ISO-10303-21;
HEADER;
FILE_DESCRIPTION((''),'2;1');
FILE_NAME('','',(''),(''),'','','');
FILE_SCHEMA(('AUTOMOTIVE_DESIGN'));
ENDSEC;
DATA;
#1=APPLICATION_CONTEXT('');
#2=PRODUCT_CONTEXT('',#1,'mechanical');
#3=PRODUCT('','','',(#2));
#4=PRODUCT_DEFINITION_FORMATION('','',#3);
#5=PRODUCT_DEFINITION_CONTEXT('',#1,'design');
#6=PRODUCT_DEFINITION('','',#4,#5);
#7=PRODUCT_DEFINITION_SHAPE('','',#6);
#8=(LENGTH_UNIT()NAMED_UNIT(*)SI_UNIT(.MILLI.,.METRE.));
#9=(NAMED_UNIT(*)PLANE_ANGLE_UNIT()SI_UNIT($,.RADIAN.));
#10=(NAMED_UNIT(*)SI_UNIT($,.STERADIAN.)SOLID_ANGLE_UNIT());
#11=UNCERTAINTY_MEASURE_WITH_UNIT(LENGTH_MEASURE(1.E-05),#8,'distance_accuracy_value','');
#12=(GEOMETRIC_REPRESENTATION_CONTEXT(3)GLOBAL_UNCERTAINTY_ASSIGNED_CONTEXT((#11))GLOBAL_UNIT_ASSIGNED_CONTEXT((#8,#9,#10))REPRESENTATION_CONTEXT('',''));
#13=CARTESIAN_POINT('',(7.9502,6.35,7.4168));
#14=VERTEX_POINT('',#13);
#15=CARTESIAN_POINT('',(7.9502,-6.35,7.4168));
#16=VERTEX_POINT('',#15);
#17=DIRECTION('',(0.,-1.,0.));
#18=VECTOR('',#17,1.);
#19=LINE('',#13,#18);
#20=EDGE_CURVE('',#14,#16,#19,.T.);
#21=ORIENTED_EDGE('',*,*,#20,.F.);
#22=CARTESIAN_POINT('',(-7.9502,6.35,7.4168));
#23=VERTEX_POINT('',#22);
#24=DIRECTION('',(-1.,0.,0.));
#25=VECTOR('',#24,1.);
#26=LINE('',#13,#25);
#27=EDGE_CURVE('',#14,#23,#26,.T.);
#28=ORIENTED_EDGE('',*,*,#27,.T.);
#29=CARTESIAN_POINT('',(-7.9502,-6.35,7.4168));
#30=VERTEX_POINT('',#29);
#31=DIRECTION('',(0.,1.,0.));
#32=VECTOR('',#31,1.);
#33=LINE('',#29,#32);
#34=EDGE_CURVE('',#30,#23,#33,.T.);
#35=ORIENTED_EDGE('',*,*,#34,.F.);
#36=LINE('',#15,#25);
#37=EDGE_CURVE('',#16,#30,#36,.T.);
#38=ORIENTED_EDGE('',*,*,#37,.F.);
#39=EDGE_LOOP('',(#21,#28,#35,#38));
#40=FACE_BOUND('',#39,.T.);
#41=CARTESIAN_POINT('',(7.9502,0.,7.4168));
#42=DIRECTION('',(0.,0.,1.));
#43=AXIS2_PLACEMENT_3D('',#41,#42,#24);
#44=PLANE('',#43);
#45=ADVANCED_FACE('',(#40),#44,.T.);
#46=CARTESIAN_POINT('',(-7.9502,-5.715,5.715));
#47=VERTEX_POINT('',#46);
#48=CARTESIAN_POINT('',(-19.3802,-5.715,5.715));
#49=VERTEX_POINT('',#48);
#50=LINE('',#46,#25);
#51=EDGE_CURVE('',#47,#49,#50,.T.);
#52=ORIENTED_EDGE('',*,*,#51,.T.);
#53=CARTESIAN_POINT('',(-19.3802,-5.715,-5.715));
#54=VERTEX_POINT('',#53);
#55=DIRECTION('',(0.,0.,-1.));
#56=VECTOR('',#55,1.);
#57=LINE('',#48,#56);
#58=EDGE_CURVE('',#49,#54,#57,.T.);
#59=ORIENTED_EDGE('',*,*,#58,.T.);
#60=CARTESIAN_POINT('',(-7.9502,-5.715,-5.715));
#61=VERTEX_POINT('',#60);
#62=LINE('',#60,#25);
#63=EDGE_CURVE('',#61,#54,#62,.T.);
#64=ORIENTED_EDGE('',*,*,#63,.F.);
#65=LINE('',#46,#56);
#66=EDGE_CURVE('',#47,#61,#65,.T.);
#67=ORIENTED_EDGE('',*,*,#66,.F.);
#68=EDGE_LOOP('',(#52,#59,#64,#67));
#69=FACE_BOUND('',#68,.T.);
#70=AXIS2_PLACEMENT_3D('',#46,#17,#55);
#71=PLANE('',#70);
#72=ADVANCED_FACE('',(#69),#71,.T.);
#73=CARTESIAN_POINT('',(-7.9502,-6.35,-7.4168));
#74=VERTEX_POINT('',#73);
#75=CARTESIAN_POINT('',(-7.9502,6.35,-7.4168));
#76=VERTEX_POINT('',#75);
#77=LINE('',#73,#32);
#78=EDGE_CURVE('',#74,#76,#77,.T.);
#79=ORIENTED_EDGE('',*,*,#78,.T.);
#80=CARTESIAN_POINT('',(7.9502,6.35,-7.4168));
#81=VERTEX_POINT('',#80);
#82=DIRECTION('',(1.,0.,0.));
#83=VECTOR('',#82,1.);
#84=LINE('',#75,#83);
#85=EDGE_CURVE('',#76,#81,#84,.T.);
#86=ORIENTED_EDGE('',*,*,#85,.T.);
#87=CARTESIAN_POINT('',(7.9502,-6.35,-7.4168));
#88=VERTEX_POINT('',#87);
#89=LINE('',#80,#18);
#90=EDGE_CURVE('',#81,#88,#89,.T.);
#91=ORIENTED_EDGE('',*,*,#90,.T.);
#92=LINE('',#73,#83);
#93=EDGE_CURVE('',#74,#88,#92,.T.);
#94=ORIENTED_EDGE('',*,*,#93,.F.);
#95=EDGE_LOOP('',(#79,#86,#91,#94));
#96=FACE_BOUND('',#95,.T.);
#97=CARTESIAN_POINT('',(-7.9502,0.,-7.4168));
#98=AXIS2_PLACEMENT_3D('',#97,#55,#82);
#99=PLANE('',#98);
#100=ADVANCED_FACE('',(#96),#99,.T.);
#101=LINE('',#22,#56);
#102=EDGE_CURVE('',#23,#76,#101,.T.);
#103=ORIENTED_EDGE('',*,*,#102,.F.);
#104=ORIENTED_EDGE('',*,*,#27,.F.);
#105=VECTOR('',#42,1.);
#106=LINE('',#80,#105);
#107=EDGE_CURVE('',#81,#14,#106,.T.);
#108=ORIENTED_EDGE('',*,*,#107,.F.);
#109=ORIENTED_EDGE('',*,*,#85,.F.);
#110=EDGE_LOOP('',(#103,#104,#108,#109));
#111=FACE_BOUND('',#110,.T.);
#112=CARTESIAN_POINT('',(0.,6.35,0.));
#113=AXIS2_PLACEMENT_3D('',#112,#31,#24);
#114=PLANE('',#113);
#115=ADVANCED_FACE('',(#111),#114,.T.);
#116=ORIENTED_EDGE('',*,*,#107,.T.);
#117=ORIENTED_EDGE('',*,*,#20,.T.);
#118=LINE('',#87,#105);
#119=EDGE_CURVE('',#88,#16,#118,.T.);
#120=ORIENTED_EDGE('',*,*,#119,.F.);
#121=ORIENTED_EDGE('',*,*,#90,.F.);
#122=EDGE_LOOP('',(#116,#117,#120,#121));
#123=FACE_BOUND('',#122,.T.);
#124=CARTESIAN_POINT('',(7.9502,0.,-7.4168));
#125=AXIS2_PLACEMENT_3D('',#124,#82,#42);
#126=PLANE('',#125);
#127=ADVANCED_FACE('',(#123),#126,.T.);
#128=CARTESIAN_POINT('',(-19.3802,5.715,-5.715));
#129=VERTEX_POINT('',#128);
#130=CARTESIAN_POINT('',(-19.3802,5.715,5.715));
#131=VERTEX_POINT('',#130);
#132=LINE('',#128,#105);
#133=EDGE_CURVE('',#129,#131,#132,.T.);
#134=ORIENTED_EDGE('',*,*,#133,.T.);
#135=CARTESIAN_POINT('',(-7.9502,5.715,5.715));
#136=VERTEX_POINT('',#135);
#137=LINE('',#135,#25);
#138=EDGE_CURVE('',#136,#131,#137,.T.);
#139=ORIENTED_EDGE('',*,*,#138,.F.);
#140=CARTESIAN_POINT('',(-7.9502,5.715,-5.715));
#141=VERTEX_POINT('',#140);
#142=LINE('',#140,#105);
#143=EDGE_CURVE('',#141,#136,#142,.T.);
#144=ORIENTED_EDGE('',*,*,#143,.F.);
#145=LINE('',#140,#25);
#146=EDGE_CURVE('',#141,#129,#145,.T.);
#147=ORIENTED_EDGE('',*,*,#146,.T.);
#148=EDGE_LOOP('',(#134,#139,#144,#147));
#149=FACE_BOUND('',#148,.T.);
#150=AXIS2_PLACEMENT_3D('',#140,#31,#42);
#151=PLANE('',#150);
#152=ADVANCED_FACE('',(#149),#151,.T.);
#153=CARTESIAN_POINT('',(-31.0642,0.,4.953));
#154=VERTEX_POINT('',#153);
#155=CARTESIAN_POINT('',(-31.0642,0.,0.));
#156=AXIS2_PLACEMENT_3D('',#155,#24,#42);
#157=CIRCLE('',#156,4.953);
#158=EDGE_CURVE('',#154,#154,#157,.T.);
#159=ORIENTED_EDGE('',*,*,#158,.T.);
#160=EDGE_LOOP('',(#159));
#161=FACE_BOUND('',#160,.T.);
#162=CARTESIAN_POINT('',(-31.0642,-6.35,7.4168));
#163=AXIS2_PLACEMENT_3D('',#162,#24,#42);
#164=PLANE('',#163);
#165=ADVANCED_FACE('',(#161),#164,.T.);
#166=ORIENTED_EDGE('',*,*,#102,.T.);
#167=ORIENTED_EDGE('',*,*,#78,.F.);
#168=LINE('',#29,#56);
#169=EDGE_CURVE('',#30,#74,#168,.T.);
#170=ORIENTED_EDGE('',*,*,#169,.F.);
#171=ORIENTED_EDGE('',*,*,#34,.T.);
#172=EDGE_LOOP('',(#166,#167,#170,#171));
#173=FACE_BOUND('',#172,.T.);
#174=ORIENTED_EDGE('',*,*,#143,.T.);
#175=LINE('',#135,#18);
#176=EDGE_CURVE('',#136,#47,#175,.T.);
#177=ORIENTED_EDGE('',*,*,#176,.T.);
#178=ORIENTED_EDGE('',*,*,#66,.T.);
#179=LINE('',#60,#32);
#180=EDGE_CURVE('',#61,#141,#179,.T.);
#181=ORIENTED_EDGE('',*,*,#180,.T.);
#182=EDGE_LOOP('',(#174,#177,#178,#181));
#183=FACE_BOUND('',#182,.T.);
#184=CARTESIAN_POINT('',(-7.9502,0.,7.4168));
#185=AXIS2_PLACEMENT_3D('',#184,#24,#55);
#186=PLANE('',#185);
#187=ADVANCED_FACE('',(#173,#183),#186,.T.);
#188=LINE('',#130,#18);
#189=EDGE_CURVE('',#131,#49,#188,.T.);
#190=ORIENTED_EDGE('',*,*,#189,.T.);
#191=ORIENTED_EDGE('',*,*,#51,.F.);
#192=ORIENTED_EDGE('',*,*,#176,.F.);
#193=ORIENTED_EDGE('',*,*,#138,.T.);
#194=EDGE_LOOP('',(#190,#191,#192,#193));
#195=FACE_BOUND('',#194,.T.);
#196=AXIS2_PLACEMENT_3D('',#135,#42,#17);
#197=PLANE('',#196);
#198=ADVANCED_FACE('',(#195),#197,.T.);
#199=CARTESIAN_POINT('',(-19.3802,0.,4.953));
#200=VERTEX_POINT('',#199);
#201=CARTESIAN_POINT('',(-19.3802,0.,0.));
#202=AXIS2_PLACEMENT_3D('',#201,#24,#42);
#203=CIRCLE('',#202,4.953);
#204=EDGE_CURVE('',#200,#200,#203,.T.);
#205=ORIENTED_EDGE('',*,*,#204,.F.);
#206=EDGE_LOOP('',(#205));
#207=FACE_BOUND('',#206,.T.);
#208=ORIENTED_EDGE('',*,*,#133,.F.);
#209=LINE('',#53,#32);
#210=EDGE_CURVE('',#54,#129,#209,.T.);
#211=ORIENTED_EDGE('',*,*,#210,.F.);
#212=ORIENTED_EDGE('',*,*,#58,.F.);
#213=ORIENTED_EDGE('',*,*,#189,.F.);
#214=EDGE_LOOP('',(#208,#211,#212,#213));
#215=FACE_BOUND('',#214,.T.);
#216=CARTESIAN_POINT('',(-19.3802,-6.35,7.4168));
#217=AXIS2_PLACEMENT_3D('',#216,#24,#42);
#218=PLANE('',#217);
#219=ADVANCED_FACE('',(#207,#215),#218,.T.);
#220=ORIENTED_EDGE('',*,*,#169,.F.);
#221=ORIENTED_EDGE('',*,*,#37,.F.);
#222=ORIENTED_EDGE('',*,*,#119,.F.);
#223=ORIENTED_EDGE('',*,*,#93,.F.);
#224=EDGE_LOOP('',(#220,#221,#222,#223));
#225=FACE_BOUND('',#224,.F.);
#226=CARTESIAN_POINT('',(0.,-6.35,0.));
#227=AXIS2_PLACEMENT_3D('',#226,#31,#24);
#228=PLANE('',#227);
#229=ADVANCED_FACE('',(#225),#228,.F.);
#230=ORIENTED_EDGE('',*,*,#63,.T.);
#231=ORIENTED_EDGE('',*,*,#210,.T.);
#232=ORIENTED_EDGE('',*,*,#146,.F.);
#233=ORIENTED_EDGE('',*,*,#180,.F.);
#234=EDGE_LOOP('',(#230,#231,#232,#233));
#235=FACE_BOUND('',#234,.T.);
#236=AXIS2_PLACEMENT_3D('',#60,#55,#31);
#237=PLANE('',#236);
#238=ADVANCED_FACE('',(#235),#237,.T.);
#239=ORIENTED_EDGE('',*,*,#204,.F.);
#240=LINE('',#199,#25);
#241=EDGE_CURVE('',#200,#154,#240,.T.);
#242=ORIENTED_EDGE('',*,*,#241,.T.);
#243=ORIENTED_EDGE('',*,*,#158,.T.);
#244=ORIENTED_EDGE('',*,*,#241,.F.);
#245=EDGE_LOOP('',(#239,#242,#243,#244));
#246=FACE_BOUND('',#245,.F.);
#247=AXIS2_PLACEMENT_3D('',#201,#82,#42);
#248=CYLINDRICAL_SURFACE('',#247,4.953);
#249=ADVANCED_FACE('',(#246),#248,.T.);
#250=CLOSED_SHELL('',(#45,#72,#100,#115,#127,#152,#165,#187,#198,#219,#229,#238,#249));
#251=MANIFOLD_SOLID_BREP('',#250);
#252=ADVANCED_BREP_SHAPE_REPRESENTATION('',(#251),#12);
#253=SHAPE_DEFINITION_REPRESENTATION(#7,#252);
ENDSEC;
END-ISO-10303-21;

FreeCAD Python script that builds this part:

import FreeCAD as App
import Part
import Sketcher

V = App.Vector
Q = App.Units.Quantity

doc = App.newDocument("Part")
params = doc.addObject("Spreadsheet::Sheet", "Params")
for row, (alias, value) in enumerate([
    ("sketch1_width", "0.626 in"),
    ("sketch1_height", "0.584 in"),
    ("pad1_length", "0.5 in"),
    ("sketch2_width", "0.45 in"),
    ("pad2_length", "0.45 in"),
    ("sketch3_diameter", "0.39 in"),
    ("pad3_length", "0.46 in"),
], start=1):
    params.set(f"A{row}", alias)
    params.set(f"B{row}", "=" + value)
    params.setAlias(f"B{row}", alias)

body = doc.addObject("PartDesign::Body", "Body")

sketch1 = body.newObject("Sketcher::SketchObject", "Sketch")
sketch1.AttachmentSupport = (doc.getObject("XZ_Plane"), [""])
sketch1.MapMode = "FlatFace"
sketch1.addGeometry([
    Part.LineSegment(V(8, -7, 0), V(-8, -7, 0)),
    Part.LineSegment(V(-8, -7, 0), V(-8, 7, 0)),
    Part.LineSegment(V(-8, 7, 0), V(8, 7, 0)),
    Part.LineSegment(V(8, 7, 0), V(8, -7, 0)),
], False)
sketch1.addConstraint([
    Sketcher.Constraint("Coincident", 0, 2, 1, 1),
    Sketcher.Constraint("Coincident", 1, 2, 2, 1),
    Sketcher.Constraint("Coincident", 2, 2, 3, 1),
    Sketcher.Constraint("Coincident", 3, 2, 0, 1),
    Sketcher.Constraint("Horizontal", 0),
    Sketcher.Constraint("Vertical", 1),
    Sketcher.Constraint("Horizontal", 2),
    Sketcher.Constraint("Vertical", 3),
    Sketcher.Constraint("Symmetric", 0, 2, 2, 2, -1, 1),
    Sketcher.Constraint("DistanceX", 0, 2, 0, 1, Q("0.626 in")),
    Sketcher.Constraint("DistanceY", 1, 1, 1, 2, Q("0.584 in")),
])
sketch1.setExpression("Constraints[9]", "Params.sketch1_width")
sketch1.setExpression("Constraints[10]", "Params.sketch1_height")
pad1 = body.newObject("PartDesign::Pad", "Pad")
pad1.Profile = sketch1
pad1.setExpression("Length", "Params.pad1_length")
pad1.Midplane = True

sketch2 = body.newObject("Sketcher::SketchObject", "Sketch001")
sketch2.AttachmentSupport = (doc.getObject("YZ_Plane"), [""])
sketch2.MapMode = "FlatFace"
sketch2.AttachmentOffset = App.Placement(V(0, 0, -0.313 * 25.4), App.Rotation())
sketch2.addGeometry([
    Part.LineSegment(V(6, 6, 0), V(6, -6, 0)),
    Part.LineSegment(V(6, -6, 0), V(-6, -6, 0)),
    Part.LineSegment(V(-6, -6, 0), V(-6, 6, 0)),
    Part.LineSegment(V(-6, 6, 0), V(6, 6, 0)),
], False)
sketch2.addConstraint([
    Sketcher.Constraint("Coincident", 0, 2, 1, 1),
    Sketcher.Constraint("Coincident", 1, 2, 2, 1),
    Sketcher.Constraint("Coincident", 2, 2, 3, 1),
    Sketcher.Constraint("Coincident", 3, 2, 0, 1),
    Sketcher.Constraint("Vertical", 0),
    Sketcher.Constraint("Horizontal", 1),
    Sketcher.Constraint("Vertical", 2),
    Sketcher.Constraint("Horizontal", 3),
    Sketcher.Constraint("Symmetric", 0, 2, 2, 2, -1, 1),
    Sketcher.Constraint("Equal", 3, 0),
    Sketcher.Constraint("DistanceX", 1, 2, 1, 1, Q("0.45 in")),
])
sketch2.setExpression("Constraints[10]", "Params.sketch2_width")
pad2 = body.newObject("PartDesign::Pad", "Pad001")
pad2.Profile = sketch2
pad2.setExpression("Length", "Params.pad2_length")
pad2.Reversed = True

sketch3 = body.newObject("Sketcher::SketchObject", "Sketch002")
sketch3.AttachmentSupport = (doc.getObject("YZ_Plane"), [""])
sketch3.MapMode = "FlatFace"
sketch3.AttachmentOffset = App.Placement(V(0, 0, -0.763 * 25.4), App.Rotation())
sketch3.addGeometry(Part.Circle(V(0, 0, 0), V(0, 0, 1), 5), False)
sketch3.addConstraint([
    Sketcher.Constraint("Coincident", 0, 3, -1, 1),
    Sketcher.Constraint("Diameter", 0, Q("0.39 in")),
])
sketch3.setExpression("Constraints[1]", "Params.sketch3_diameter")
pad3 = body.newObject("PartDesign::Pad", "Pad002")
pad3.Profile = sketch3
pad3.setExpression("Length", "Params.pad3_length")
pad3.Reversed = True

doc.recompute()
